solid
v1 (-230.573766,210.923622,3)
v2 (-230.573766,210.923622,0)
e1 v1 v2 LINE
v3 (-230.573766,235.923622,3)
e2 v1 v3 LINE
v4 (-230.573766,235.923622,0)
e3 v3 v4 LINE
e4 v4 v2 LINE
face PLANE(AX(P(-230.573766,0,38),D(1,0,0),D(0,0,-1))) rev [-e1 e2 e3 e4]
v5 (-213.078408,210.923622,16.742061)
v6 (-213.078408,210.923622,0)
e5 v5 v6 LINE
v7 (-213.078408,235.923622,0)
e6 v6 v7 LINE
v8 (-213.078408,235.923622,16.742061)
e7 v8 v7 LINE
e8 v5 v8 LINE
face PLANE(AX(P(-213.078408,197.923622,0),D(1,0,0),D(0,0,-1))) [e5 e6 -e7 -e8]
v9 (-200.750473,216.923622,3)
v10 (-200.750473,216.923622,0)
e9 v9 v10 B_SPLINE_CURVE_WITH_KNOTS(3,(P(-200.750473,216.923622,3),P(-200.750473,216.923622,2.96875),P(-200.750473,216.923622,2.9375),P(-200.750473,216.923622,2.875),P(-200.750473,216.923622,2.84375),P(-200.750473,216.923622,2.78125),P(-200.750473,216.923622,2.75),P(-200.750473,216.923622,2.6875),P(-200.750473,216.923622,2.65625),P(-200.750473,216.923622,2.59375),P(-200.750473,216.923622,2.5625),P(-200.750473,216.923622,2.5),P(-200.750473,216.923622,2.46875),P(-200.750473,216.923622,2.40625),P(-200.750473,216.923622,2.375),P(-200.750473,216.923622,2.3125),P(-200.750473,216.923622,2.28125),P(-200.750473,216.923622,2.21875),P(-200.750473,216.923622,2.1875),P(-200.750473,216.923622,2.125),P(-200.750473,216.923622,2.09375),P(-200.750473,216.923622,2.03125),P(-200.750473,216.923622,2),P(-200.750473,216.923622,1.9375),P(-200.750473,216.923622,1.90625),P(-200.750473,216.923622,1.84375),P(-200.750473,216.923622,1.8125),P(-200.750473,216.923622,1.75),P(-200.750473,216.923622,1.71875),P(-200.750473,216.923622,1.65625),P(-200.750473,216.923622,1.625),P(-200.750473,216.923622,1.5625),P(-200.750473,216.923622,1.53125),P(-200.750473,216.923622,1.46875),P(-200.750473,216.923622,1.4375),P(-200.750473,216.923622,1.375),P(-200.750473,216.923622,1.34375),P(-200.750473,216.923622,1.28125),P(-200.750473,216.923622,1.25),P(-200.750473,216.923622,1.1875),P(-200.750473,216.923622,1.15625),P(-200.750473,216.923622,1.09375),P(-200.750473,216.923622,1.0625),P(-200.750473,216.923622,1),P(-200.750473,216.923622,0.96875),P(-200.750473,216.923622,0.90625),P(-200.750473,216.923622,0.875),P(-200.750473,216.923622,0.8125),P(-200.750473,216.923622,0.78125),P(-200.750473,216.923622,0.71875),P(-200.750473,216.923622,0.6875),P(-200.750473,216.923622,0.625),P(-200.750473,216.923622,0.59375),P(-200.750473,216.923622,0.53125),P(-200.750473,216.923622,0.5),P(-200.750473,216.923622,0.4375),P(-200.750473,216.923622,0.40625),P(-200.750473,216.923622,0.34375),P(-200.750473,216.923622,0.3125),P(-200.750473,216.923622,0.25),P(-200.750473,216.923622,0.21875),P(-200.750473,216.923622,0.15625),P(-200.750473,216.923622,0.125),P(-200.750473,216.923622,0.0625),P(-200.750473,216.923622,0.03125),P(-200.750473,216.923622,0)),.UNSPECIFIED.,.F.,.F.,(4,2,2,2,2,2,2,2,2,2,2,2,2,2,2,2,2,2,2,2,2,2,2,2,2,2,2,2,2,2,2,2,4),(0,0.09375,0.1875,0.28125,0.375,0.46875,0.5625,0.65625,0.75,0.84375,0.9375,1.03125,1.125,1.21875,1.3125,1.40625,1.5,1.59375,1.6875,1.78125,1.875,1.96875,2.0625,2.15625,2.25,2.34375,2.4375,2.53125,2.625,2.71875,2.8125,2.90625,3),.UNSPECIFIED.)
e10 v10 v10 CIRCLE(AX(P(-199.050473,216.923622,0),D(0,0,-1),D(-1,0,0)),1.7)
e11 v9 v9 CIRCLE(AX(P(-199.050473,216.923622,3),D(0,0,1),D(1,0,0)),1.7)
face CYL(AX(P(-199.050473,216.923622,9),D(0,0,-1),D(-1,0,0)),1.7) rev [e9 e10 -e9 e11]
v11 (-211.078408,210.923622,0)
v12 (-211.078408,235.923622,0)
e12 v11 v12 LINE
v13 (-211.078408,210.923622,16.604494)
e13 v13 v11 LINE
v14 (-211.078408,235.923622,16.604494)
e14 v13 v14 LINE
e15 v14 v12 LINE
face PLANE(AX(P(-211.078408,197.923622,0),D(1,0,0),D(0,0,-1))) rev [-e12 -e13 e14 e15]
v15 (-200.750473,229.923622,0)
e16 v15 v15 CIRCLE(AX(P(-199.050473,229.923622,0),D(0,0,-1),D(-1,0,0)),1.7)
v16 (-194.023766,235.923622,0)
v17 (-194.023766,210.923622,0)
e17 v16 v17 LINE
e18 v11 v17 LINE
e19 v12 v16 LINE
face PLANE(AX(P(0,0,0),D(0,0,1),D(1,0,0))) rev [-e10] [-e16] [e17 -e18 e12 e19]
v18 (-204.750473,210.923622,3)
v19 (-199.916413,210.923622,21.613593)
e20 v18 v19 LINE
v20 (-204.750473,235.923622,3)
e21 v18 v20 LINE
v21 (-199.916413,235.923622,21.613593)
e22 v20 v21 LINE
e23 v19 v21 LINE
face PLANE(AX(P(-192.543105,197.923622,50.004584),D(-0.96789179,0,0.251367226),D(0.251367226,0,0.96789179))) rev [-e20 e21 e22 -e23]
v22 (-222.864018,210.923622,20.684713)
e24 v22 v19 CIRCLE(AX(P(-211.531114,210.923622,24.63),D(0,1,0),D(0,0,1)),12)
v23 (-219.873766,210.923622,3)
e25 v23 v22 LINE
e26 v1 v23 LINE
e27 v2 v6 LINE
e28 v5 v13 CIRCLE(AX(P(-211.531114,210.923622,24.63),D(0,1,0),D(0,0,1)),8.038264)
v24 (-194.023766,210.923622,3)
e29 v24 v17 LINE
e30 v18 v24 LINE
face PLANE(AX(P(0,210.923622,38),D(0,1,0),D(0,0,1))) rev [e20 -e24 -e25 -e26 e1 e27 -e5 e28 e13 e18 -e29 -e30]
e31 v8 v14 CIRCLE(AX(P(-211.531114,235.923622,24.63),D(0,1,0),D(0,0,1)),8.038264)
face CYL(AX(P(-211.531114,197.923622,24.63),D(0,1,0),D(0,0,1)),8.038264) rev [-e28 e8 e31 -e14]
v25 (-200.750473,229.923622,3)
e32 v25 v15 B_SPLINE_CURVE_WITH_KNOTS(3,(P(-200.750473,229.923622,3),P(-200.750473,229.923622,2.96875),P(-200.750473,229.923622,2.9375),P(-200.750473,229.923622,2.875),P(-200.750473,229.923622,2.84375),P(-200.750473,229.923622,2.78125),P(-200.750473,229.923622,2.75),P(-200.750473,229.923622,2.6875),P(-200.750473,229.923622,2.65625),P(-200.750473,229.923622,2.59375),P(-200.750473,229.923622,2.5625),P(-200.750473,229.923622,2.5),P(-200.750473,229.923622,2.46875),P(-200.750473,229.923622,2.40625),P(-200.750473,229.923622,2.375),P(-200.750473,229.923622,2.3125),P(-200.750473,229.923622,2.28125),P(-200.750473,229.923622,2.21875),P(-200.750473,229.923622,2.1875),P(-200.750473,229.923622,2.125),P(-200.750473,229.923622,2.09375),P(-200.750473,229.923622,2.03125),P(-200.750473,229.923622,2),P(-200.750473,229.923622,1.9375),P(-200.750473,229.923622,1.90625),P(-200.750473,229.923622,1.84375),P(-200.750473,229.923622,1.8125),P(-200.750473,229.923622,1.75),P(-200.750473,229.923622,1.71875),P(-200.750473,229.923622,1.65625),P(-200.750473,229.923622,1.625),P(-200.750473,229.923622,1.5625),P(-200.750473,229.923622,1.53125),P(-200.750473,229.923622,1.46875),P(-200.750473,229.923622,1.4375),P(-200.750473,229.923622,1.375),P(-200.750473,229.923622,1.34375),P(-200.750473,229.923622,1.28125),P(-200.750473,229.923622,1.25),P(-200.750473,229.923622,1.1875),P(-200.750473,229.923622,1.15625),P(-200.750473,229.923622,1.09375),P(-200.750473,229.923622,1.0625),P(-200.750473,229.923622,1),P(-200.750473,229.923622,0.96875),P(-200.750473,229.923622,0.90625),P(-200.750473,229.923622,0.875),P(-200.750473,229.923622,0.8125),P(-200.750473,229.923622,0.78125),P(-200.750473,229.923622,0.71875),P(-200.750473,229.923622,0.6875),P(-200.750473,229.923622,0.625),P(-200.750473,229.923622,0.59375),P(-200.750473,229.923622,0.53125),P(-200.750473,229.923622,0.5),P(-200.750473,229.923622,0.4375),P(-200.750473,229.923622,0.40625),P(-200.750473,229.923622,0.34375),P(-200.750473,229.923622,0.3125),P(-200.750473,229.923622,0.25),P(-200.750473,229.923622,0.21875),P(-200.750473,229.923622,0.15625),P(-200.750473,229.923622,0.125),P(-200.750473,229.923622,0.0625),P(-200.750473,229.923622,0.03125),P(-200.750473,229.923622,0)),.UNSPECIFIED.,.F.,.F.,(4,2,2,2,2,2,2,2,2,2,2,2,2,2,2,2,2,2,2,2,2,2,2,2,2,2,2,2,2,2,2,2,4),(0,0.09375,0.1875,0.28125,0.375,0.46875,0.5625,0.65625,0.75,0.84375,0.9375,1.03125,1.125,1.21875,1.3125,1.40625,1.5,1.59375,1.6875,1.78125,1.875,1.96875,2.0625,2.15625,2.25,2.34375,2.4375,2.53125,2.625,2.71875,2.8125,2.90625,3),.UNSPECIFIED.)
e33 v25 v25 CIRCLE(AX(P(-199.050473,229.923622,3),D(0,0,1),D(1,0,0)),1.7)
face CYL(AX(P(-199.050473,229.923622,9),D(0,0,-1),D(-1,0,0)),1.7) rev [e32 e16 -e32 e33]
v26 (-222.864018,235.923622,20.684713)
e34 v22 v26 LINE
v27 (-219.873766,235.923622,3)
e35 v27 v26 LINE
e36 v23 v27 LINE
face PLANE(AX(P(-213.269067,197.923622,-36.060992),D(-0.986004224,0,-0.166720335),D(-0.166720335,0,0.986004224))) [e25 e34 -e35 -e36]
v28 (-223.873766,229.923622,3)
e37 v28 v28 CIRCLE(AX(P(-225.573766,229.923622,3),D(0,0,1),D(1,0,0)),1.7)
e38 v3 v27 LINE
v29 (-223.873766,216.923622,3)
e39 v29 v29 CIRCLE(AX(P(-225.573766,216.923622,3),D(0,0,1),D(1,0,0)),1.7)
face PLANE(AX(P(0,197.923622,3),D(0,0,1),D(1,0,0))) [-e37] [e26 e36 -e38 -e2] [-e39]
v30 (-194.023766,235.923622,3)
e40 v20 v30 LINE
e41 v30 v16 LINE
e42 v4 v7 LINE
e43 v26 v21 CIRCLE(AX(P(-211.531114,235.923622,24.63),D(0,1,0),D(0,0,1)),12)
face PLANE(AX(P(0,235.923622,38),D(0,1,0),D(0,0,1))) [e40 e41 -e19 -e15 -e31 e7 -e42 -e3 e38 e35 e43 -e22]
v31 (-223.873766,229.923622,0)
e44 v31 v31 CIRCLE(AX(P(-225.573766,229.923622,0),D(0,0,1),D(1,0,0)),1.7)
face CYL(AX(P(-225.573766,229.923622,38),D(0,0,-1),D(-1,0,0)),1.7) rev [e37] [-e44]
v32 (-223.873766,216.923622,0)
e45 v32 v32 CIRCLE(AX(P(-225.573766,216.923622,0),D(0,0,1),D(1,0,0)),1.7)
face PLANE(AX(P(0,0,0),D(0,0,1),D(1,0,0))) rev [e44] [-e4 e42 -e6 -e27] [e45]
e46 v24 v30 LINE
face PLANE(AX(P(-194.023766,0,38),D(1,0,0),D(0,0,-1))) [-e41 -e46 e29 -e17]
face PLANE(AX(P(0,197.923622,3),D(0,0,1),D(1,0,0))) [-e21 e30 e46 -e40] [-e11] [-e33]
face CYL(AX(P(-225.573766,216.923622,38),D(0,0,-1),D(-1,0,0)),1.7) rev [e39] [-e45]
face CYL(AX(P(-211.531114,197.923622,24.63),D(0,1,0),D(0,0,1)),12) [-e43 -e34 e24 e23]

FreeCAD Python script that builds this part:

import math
import FreeCAD as App
import Part
import Sketcher
from FreeCAD import Vector
Q = App.Units.Quantity

doc = App.newDocument("Part")
body = doc.addObject("PartDesign::Body", "Body")

# Sketch on XY plane
sketch1 = body.newObject("Sketcher::SketchObject", "Sketch")
sketch1.AttachmentSupport = (doc.getObject("XY_Plane"), [""])
sketch1.MapMode = "FlatFace"
sketch1.addGeometry(Part.LineSegment(Vector(-194, 235.9, 0), Vector(-230.6, 235.9, 0)), False)
sketch1.addGeometry(Part.LineSegment(Vector(-230.6, 235.9, 0), Vector(-230.6, 210.9, 0)), False)
sketch1.addGeometry(Part.LineSegment(Vector(-230.6, 210.9, 0), Vector(-194, 210.9, 0)), False)
sketch1.addGeometry(Part.LineSegment(Vector(-194, 210.9, 0), Vector(-194, 235.9, 0)), False)
sketch1.addGeometry(Part.Circle(Vector(-225.6, 216.9, 0), Vector(0, 0, 1), 1.7), False)
sketch1.addGeometry(Part.Circle(Vector(-225.6, 229.9, 0), Vector(0, 0, 1), 1.7), False)
sketch1.addConstraint(Sketcher.Constraint("Coincident", 0, 2, 1, 1))
sketch1.addConstraint(Sketcher.Constraint("Coincident", 1, 2, 2, 1))
sketch1.addConstraint(Sketcher.Constraint("Coincident", 2, 2, 3, 1))
sketch1.addConstraint(Sketcher.Constraint("Coincident", 3, 2, 0, 1))
sketch1.addConstraint(Sketcher.Constraint("Horizontal", 0))
sketch1.addConstraint(Sketcher.Constraint("Vertical", 1))
sketch1.addConstraint(Sketcher.Constraint("Horizontal", 2))
sketch1.addConstraint(Sketcher.Constraint("Vertical", 3))
sketch1.addConstraint(Sketcher.Constraint("Equal", 4, 5))
sketch1.addConstraint(Sketcher.Constraint("Vertical", 4, 3, 5, 3))
sketch1.addConstraint(Sketcher.Constraint("Diameter", 4, Q("3.4 mm")))
sketch1.addConstraint(Sketcher.Constraint("DistanceY", 1, 2, 1, 1, Q("25 mm")))
sketch1.addConstraint(Sketcher.Constraint("DistanceY", 4, 3, 5, 3, Q("13 mm")))
sketch1.addConstraint(Sketcher.Constraint("DistanceX", 0, 2, 5, 3, Q("5 mm")))
sketch1.addConstraint(Sketcher.Constraint("DistanceY", 5, 3, 0, 2, Q("6 mm")))
sketch1.addConstraint(Sketcher.Constraint("DistanceX", 0, 2, 0, 1, Q("36.55 mm")))
sketch1.addConstraint(Sketcher.Constraint("DistanceX", 4, 3, -1, 1, Q("225.573766 mm")))
sketch1.addConstraint(Sketcher.Constraint("DistanceY", -1, 1, 4, 3, Q("216.923622 mm")))
pad1 = body.newObject("PartDesign::Pad", "Pad")
pad1.Profile = sketch1
pad1.Length = 38

# Sketch on XZ plane
sketch2 = body.newObject("Sketcher::SketchObject", "Sketch001")
sketch2.AttachmentSupport = (doc.getObject("XZ_Plane"), [""])
sketch2.MapMode = "FlatFace"
sketch2.AttachmentOffset = App.Placement(Vector(0, 0, -235.923622), App.Rotation())
sketch2.addGeometry(Part.LineSegment(Vector(-213.1, 0, 0), Vector(-213.1, 16.7, 0)), False)
sketch2.addGeometry(Part.ArcOfCircle(Part.Circle(Vector(-211.5, 24.6, 0), Vector(0, 0, 1), 8), math.radians(-87), math.radians(259)), False)
sketch2.addGeometry(Part.LineSegment(Vector(-211.1, 16.6, 0), Vector(-211.1, 0, 0)), False)
sketch2.addGeometry(Part.LineSegment(Vector(-211.1, 0, 0), Vector(-213.1, 0, 0)), False)
sketch2.addGeometry(Part.ArcOfCircle(Part.Circle(Vector(-211.5, 24.6, 0), Vector(0, 0, 1), 12), math.radians(-15), math.radians(199)), False)
sketch2.addGeometry(Part.LineSegment(Vector(-222.9, 20.7, 0), Vector(-219.9, 3, 0)), False)
sketch2.addGeometry(Part.LineSegment(Vector(-219.9, 3, 0), Vector(-230.6, 3, 0)), False)
sketch2.addGeometry(Part.LineSegment(Vector(-230.6, 3, 0), Vector(-230.6, 38, 0)), False)
sketch2.addGeometry(Part.LineSegment(Vector(-230.6, 38, 0), Vector(-194, 38, 0)), False)
sketch2.addGeometry(Part.LineSegment(Vector(-194, 38, 0), Vector(-194, 3, 0)), False)
sketch2.addGeometry(Part.LineSegment(Vector(-194, 3, 0), Vector(-204.8, 3, 0)), False)
sketch2.addGeometry(Part.LineSegment(Vector(-204.8, 3, 0), Vector(-199.9, 21.6, 0)), False)
sketch2.addConstraint(Sketcher.Constraint("Coincident", 0, 2, 1, 2))
sketch2.addConstraint(Sketcher.Constraint("Coincident", 1, 1, 2, 1))
sketch2.addConstraint(Sketcher.Constraint("Coincident", 2, 2, 3, 1))
sketch2.addConstraint(Sketcher.Constraint("Coincident", 3, 2, 0, 1))
sketch2.addConstraint(Sketcher.Constraint("Coincident", 4, 2, 5, 1))
sketch2.addConstraint(Sketcher.Constraint("Coincident", 5, 2, 6, 1))
sketch2.addConstraint(Sketcher.Constraint("Coincident", 6, 2, 7, 1))
sketch2.addConstraint(Sketcher.Constraint("Coincident", 7, 2, 8, 1))
sketch2.addConstraint(Sketcher.Constraint("Coincident", 8, 2, 9, 1))
sketch2.addConstraint(Sketcher.Constraint("Coincident", 9, 2, 10, 1))
sketch2.addConstraint(Sketcher.Constraint("Coincident", 10, 2, 11, 1))
sketch2.addConstraint(Sketcher.Constraint("Tangent", 11, 2, 4, 1))
sketch2.addConstraint(Sketcher.Constraint("Vertical", 0))
sketch2.addConstraint(Sketcher.Constraint("Vertical", 2))
sketch2.addConstraint(Sketcher.Constraint("Horizontal", 3))
sketch2.addConstraint(Sketcher.Constraint("Horizontal", 6))
sketch2.addConstraint(Sketcher.Constraint("Vertical", 7))
sketch2.addConstraint(Sketcher.Constraint("Horizontal", 8))
sketch2.addConstraint(Sketcher.Constraint("Vertical", 9))
sketch2.addConstraint(Sketcher.Constraint("Horizontal", 10))
sketch2.addConstraint(Sketcher.Constraint("Coincident", 4, 3, 1, 3))
sketch2.addConstraint(Sketcher.Constraint("PointOnObject", 2, 2, -1))
sketch2.addConstraint(Sketcher.Constraint("Horizontal", 6, 2, 9, 2))
sketch2.addConstraint(Sketcher.Constraint("Radius", 4, Q("12 mm")))
sketch2.addConstraint(Sketcher.Constraint("DistanceX", 3, 2, 3, 1, Q("2 mm")))
sketch2.addConstraint(Sketcher.Constraint("DistanceY", 7, 1, 7, 2, Q("35 mm")))
sketch2.addConstraint(Sketcher.Constraint("DistanceX", 6, 2, 6, 1, Q("10.7 mm")))
sketch2.addConstraint(Sketcher.Constraint("DistanceY", -1, 1, 5, 2, Q("3 mm")))
sketch2.addConstraint(Sketcher.Constraint("DistanceX", 8, 1, 8, 2, Q("36.55 mm")))
sketch2.addConstraint(Sketcher.Constraint("DistanceY", -1, 1, 1, 3, Q("24.63 mm")))
sketch2.addConstraint(Sketcher.Constraint("Radius", 1, Q("8.038264 mm")))
sketch2.addConstraint(Sketcher.Constraint("DistanceY", 0, 1, 0, 2, Q("16.742061 mm")))
sketch2.addConstraint(Sketcher.Constraint("DistanceX", 1, 3, 11, 2, Q("11.614701 mm")))
sketch2.addConstraint(Sketcher.Constraint("DistanceX", 10, 2, 10, 1, Q("10.726707 mm")))
sketch2.addConstraint(Sketcher.Constraint("DistanceX", 4, 2, -1, 1, Q("222.864018 mm")))
sketch2.addConstraint(Sketcher.Constraint("DistanceX", 4, 2, 0, 2, Q("9.785611 mm")))
pocket1 = body.newObject("PartDesign::Pocket", "Pocket")
pocket1.Profile = sketch2
pocket1.Length = 38
pocket1.Reversed = True

# Sketch on XY plane
sketch3 = body.newObject("Sketcher::SketchObject", "Sketch002")
sketch3.AttachmentSupport = (doc.getObject("XY_Plane"), [""])
sketch3.MapMode = "FlatFace"
sketch3.addGeometry(Part.Circle(Vector(-199.1, 216.9, 0), Vector(0, 0, 1), 1.7), False)
sketch3.addGeometry(Part.Circle(Vector(-199.1, 229.9, 0), Vector(0, 0, 1), 1.7), False)
sketch3.addConstraint(Sketcher.Constraint("Equal", 0, 1))
sketch3.addConstraint(Sketcher.Constraint("Vertical", 0, 3, 1, 3))
sketch3.addConstraint(Sketcher.Constraint("Diameter", 0, Q("3.4 mm")))
sketch3.addConstraint(Sketcher.Constraint("DistanceY", 0, 3, 1, 3, Q("13 mm")))
sketch3.addConstraint(Sketcher.Constraint("DistanceX", 0, 3, -1, 1, Q("199.050473 mm")))
sketch3.addConstraint(Sketcher.Constraint("DistanceY", -1, 1, 0, 3, Q("216.923622 mm")))
pocket2 = body.newObject("PartDesign::Pocket", "Pocket001")
pocket2.Profile = sketch3
pocket2.Length = 9
pocket2.Reversed = True

doc.recompute()
